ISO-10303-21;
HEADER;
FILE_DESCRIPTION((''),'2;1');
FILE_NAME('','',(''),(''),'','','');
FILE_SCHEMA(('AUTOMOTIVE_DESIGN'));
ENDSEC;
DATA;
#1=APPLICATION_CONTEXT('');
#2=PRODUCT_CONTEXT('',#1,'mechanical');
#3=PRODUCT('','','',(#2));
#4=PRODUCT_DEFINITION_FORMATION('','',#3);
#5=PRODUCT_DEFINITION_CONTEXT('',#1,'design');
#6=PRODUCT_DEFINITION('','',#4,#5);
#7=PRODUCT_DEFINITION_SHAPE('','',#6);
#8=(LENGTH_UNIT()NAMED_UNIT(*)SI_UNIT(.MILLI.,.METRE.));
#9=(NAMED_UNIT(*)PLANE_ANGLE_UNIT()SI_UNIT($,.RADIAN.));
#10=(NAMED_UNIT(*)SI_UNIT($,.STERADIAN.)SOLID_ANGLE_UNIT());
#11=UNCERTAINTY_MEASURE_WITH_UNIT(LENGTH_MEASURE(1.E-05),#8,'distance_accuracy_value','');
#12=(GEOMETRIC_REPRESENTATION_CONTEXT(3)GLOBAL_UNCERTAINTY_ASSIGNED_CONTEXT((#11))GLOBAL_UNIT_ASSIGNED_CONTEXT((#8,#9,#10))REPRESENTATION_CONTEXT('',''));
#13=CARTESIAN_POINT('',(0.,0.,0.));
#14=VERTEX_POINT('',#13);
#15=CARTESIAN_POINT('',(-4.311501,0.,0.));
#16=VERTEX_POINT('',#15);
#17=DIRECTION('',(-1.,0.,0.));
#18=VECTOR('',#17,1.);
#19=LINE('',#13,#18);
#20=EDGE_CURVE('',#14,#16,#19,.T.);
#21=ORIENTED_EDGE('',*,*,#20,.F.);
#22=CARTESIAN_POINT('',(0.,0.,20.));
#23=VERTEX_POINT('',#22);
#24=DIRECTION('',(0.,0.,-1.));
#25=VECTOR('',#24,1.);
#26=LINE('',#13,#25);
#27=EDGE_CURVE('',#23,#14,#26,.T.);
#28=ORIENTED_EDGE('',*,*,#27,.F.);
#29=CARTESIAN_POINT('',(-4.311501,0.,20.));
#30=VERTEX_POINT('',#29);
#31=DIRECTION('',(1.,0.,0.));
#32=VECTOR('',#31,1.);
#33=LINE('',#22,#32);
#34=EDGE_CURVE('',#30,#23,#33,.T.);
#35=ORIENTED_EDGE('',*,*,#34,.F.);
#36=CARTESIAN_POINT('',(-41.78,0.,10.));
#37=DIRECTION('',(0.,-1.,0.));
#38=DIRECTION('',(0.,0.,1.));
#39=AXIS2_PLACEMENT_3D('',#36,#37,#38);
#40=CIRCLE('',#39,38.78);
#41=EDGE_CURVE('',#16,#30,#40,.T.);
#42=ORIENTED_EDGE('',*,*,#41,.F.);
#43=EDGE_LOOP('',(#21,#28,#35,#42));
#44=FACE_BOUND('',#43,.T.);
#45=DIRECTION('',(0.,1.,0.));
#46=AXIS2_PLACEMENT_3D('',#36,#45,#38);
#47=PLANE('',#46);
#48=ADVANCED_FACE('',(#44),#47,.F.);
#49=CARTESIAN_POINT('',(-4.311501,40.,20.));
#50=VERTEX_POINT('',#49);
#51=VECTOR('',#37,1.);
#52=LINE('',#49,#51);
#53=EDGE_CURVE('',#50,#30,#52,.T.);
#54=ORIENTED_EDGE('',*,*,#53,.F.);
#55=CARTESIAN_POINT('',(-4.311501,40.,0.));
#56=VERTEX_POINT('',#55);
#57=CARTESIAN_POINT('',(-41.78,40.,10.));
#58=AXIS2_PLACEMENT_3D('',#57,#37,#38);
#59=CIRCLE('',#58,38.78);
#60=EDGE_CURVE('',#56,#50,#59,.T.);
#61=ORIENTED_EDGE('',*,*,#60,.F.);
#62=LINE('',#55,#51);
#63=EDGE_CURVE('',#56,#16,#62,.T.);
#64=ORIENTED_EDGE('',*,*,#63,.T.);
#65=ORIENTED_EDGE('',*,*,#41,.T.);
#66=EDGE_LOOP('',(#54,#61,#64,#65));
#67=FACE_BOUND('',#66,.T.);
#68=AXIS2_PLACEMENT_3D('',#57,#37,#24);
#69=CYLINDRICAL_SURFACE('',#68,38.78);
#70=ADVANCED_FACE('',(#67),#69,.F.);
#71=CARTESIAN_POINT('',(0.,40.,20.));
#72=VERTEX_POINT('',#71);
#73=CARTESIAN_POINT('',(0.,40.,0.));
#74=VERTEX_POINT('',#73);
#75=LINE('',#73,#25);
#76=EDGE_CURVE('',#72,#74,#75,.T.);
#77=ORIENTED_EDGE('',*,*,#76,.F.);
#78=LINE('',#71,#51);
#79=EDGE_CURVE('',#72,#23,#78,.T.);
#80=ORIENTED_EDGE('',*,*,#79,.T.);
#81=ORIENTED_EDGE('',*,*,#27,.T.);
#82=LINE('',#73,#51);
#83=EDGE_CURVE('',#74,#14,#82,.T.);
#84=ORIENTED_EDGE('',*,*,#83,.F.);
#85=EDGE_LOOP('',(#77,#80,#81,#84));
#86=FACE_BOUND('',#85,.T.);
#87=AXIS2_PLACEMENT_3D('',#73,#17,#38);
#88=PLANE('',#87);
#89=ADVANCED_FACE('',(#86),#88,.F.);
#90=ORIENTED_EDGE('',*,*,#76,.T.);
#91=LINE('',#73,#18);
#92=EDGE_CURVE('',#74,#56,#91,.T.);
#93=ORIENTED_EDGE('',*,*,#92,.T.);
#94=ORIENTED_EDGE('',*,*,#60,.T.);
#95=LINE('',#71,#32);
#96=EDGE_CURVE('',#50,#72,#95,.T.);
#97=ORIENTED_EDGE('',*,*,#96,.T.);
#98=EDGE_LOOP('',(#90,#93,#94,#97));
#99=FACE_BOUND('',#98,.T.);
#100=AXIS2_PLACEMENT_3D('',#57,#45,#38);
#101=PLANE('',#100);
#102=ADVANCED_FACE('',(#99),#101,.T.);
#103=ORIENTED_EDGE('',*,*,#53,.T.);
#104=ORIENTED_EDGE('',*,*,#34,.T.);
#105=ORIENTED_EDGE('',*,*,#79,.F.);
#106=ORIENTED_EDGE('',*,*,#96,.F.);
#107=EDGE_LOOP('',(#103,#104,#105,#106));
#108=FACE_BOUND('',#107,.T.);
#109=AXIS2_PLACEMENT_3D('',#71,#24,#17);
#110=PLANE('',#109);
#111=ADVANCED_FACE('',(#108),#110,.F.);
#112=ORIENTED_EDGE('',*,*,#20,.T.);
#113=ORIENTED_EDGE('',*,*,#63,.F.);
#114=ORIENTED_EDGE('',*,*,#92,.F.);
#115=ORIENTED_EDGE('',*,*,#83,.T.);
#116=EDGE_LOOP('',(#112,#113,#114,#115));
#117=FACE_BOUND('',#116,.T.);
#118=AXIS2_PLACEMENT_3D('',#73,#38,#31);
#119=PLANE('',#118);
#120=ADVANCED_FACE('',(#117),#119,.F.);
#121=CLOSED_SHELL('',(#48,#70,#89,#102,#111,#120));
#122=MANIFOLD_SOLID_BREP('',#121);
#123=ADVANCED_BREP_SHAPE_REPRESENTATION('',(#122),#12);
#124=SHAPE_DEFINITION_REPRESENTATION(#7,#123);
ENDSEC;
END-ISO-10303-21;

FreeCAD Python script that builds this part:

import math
import FreeCAD as App
import Part
import Sketcher

V = App.Vector
Q = App.Units.Quantity

doc = App.newDocument("Part")
params = doc.addObject("Spreadsheet::Sheet", "Params")
for row, (alias, value) in enumerate([
    ("sketch1_height", "20 mm"),
    ("sketch1_radius", "38.78 mm"),
    ("pad1_length", "40 mm"),
], start=1):
    params.set(f"A{row}", alias)
    params.set(f"B{row}", "=" + value)
    params.setAlias(f"B{row}", alias)

body = doc.addObject("PartDesign::Body", "Body")

# Sketch on XZ plane
sketch1 = body.newObject("Sketcher::SketchObject", "Sketch")
sketch1.AttachmentSupport = (doc.getObject("XZ_Plane"), [""])
sketch1.MapMode = "FlatFace"
sketch1.addGeometry(Part.LineSegment(V(0, 20, 0), V(0, 0, 0)), False)
sketch1.addGeometry(Part.LineSegment(V(0, 0, 0), V(-4.3, 0, 0)), False)
sketch1.addGeometry(Part.ArcOfCircle(Part.Circle(V(-41.8, 10, 0), V(0, 0, 1), 38.8), math.radians(-15), math.radians(15)), False)
sketch1.addGeometry(Part.LineSegment(V(-4.3, 20, 0), V(0, 20, 0)), False)
sketch1.addConstraint(Sketcher.Constraint("Coincident", 0, 2, 1, 1))
sketch1.addConstraint(Sketcher.Constraint("Coincident", 1, 2, 2, 1))
sketch1.addConstraint(Sketcher.Constraint("Coincident", 2, 2, 3, 1))
sketch1.addConstraint(Sketcher.Constraint("Coincident", 3, 2, 0, 1))
sketch1.addConstraint(Sketcher.Constraint("Vertical", 0))
sketch1.addConstraint(Sketcher.Constraint("Horizontal", 1))
sketch1.addConstraint(Sketcher.Constraint("Horizontal", 3))
sketch1.addConstraint(Sketcher.Constraint("Coincident", 0, 2, -1, 1))
sketch1.addConstraint(Sketcher.Constraint("Vertical", 1, 2, 2, 2))
sketch1.addConstraint(Sketcher.Constraint("DistanceY", 0, 2, 0, 1, Q("20 mm")))
sketch1.addConstraint(Sketcher.Constraint("Radius", 2, Q("38.78 mm")))
sketch1.addConstraint(Sketcher.Constraint("DistanceX", 2, 3, -1, 1, Q("41.78 mm")))
sketch1.setExpression("Constraints[9]", "Params.sketch1_height")
sketch1.setExpression("Constraints[10]", "Params.sketch1_radius")
pad1 = body.newObject("PartDesign::Pad", "Pad")
pad1.Profile = sketch1
pad1.setExpression("Length", "Params.pad1_length")
pad1.Reversed = True

doc.recompute()
